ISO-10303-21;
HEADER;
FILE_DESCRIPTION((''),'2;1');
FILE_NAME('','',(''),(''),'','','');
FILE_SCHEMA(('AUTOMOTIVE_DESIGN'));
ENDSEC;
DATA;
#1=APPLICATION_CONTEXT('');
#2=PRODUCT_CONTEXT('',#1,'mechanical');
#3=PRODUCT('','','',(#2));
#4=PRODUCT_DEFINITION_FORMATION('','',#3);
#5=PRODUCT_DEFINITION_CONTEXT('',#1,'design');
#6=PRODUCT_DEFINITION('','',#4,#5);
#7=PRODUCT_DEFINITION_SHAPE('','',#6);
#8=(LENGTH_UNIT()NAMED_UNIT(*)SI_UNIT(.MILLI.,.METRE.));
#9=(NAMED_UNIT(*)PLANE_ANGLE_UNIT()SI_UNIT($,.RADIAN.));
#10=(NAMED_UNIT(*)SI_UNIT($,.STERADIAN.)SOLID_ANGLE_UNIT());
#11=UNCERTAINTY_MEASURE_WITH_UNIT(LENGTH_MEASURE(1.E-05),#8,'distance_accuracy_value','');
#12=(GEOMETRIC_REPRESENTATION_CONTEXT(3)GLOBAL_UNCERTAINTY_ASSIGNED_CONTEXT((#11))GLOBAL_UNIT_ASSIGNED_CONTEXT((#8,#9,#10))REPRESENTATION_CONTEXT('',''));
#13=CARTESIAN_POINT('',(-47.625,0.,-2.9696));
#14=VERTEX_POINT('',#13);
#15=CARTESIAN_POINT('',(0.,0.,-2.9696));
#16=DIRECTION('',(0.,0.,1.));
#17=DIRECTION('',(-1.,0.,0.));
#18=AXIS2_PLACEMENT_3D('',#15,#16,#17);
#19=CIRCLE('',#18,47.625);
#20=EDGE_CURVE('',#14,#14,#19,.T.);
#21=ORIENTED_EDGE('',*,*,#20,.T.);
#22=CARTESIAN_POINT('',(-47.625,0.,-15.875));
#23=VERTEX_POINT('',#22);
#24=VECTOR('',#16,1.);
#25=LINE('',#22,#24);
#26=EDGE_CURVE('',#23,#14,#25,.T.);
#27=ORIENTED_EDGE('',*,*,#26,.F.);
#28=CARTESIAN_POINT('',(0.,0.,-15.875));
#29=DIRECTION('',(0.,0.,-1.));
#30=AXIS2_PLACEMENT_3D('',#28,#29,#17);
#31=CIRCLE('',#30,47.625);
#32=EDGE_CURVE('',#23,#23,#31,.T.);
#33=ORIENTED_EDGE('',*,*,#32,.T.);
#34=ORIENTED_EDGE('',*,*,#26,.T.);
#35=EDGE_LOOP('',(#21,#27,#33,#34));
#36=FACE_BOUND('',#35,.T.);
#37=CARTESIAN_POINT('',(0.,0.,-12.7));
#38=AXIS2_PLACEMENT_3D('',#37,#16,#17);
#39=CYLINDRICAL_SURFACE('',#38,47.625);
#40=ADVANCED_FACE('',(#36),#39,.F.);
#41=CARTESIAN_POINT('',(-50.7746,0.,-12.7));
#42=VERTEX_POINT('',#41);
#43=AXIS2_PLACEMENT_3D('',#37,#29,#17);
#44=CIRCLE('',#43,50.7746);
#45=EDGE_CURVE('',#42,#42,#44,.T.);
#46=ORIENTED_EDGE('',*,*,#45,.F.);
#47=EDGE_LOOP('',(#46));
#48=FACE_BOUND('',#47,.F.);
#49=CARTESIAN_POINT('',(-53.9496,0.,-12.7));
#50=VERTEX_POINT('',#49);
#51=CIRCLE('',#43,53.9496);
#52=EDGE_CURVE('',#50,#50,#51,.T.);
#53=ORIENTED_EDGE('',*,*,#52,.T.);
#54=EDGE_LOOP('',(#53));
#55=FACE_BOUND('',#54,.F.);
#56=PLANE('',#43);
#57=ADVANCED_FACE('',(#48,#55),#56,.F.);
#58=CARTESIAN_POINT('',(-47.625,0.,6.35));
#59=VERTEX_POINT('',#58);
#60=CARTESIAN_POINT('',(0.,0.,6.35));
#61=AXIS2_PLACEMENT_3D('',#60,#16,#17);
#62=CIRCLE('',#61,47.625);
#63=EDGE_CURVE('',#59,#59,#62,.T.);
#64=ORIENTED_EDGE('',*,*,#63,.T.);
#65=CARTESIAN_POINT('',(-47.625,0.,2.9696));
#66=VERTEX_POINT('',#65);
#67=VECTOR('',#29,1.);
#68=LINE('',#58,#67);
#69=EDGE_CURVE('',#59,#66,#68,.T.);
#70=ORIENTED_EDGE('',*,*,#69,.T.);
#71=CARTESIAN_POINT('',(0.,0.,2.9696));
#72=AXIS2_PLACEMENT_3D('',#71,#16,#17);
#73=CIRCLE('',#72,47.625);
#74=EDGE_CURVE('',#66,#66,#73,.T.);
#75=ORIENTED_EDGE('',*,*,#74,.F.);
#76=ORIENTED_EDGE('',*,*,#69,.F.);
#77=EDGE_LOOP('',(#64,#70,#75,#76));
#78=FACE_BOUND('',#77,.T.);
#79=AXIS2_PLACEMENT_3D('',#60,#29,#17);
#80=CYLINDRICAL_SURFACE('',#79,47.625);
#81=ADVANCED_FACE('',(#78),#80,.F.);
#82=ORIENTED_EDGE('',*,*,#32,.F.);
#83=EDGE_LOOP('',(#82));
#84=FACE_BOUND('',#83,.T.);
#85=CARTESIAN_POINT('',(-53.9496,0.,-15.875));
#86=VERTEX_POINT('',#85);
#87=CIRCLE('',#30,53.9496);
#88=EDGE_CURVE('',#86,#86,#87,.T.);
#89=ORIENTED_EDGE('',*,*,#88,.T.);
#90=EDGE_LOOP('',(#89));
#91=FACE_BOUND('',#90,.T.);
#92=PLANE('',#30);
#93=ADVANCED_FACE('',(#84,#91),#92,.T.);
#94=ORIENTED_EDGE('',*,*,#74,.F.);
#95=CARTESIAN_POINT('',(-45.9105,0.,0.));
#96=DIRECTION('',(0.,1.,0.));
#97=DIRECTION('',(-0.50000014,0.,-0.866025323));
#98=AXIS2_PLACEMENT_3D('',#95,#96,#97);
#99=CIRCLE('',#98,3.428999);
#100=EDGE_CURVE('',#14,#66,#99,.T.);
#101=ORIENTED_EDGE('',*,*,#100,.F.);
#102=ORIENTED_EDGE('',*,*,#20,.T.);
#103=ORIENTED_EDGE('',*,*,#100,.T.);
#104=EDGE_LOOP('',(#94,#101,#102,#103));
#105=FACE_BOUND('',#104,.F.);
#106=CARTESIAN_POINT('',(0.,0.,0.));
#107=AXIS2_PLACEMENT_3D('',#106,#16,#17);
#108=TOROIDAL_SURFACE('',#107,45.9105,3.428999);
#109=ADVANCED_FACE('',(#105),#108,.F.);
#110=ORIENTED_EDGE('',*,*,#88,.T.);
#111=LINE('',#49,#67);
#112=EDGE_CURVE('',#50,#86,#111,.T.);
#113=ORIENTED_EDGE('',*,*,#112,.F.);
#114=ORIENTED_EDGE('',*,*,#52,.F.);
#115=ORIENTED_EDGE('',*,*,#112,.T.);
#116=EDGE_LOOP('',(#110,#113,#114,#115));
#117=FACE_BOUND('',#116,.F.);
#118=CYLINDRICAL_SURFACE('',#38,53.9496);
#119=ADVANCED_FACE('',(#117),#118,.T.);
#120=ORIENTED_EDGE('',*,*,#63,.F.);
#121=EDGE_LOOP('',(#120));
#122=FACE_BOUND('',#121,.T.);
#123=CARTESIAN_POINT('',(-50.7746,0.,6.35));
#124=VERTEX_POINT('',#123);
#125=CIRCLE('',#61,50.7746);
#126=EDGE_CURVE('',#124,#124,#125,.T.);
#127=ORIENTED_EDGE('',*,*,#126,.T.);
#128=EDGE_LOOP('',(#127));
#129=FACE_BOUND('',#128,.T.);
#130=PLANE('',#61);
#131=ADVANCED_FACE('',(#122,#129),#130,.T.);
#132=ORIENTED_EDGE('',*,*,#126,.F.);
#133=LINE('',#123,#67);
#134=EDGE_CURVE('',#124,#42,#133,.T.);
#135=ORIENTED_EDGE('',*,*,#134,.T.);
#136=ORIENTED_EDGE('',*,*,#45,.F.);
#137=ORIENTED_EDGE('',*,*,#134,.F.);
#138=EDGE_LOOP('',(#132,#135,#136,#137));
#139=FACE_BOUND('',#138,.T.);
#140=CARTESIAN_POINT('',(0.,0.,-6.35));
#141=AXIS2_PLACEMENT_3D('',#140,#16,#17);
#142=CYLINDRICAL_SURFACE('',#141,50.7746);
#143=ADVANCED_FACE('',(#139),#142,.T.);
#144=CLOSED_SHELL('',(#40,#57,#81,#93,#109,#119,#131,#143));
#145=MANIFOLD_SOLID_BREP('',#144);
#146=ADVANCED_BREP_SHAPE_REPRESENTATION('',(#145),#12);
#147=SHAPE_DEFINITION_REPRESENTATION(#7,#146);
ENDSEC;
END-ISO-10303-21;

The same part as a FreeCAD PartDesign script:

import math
import FreeCAD as App
import Part
import Sketcher

V = App.Vector
Q = App.Units.Quantity

doc = App.newDocument("Part")
body = doc.addObject("PartDesign::Body", "Body")

# Sketch on XZ plane
sketch1 = body.newObject("Sketcher::SketchObject", "Sketch")
sketch1.AttachmentSupport = (doc.getObject("XZ_Plane"), [""])
sketch1.MapMode = "FlatFace"
sketch1.addGeometry(Part.LineSegment(V(-50.8, -6.3, 0), V(-50.8, 6.3, 0)), False)
sketch1.addGeometry(Part.LineSegment(V(-50.8, 6.3, 0), V(-47.6, 6.3, 0)), False)
sketch1.addGeometry(Part.LineSegment(V(-47.6, 6.3, 0), V(-47.6, 3, 0)), False)
sketch1.addGeometry(Part.ArcOfCircle(Part.Circle(V(-45.9, 0, 0), V(0, 0, 1), 3.4), math.radians(120), math.radians(240)), False)
sketch1.addGeometry(Part.LineSegment(V(-47.6, -3, 0), V(-47.6, -6.3, 0)), False)
sketch1.addGeometry(Part.LineSegment(V(-47.6, -6.3, 0), V(-50.8, -6.3, 0)), False)
sketch1.addConstraint(Sketcher.Constraint("Coincident", 0, 2, 1, 1))
sketch1.addConstraint(Sketcher.Constraint("Coincident", 1, 2, 2, 1))
sketch1.addConstraint(Sketcher.Constraint("Coincident", 2, 2, 3, 1))
sketch1.addConstraint(Sketcher.Constraint("Coincident", 3, 2, 4, 1))
sketch1.addConstraint(Sketcher.Constraint("Coincident", 4, 2, 5, 1))
sketch1.addConstraint(Sketcher.Constraint("Coincident", 5, 2, 0, 1))
sketch1.addConstraint(Sketcher.Constraint("Vertical", 0))
sketch1.addConstraint(Sketcher.Constraint("Horizontal", 1))
sketch1.addConstraint(Sketcher.Constraint("Vertical", 2))
sketch1.addConstraint(Sketcher.Constraint("Vertical", 4))
sketch1.addConstraint(Sketcher.Constraint("Horizontal", 5))
sketch1.addConstraint(Sketcher.Constraint("Symmetric", 2, 2, 3, 2, -1))
sketch1.addConstraint(Sketcher.Constraint("Equal", 2, 4))
sketch1.addConstraint(Sketcher.Constraint("Radius", 3, Q("0.135 in")))
sketch1.addConstraint(Sketcher.Constraint("DistanceX", 1, 1, 1, 2, Q("0.124 in")))
sketch1.addConstraint(Sketcher.Constraint("DistanceY", -1, 1, 0, 2, Q("0.25 in")))
sketch1.addConstraint(Sketcher.Constraint("DistanceX", 1, 2, -1, 1, Q("1.875 in")))
sketch1.addConstraint(Sketcher.Constraint("DistanceX", 1, 2, 3, 3, Q("0.0675 in")))
revolution = body.newObject("PartDesign::Revolution", "Revolution")
revolution.Profile = sketch1
revolution.ReferenceAxis = (sketch1, ["V_Axis"])
revolution.Angle = 360

# Sketch on XY plane
sketch2 = body.newObject("Sketcher::SketchObject", "Sketch001")
sketch2.AttachmentSupport = (doc.getObject("XY_Plane"), [""])
sketch2.MapMode = "FlatFace"
sketch2.AttachmentOffset = App.Placement(V(0, 0, -0.25 * 25.4), App.Rotation())
sketch2.addGeometry(Part.Circle(V(0, 0, 0), V(0, 0, 1), 51), False)
sketch2.addGeometry(Part.Circle(V(0, 0, 0), V(0, 0, 1), 48), False)
sketch2.addConstraint(Sketcher.Constraint("Coincident", 0, 3, -1, 1))
sketch2.addConstraint(Sketcher.Constraint("Coincident", 1, 3, -1, 1))
sketch2.addConstraint(Sketcher.Constraint("Diameter", 1, Q("3.75 in")))
sketch2.addConstraint(Sketcher.Constraint("Diameter", 0, Q("3.998 in")))
pad1 = body.newObject("PartDesign::Pad", "Pad")
pad1.Profile = sketch2
pad1.Length = Q("0.25 in")
pad1.Reversed = True

# Sketch on XY plane
sketch3 = body.newObject("Sketcher::SketchObject", "Sketch002")
sketch3.AttachmentSupport = (doc.getObject("XY_Plane"), [""])
sketch3.MapMode = "FlatFace"
sketch3.AttachmentOffset = App.Placement(V(0, 0, -0.5 * 25.4), App.Rotation())
sketch3.addGeometry(Part.Circle(V(0, 0, 0), V(0, 0, 1), 54), False)
sketch3.addGeometry(Part.Circle(V(0, 0, 0), V(0, 0, 1), 48), False)
sketch3.addConstraint(Sketcher.Constraint("Coincident", 0, 3, -1, 1))
sketch3.addConstraint(Sketcher.Constraint("Coincident", 1, 3, -1, 1))
sketch3.addConstraint(Sketcher.Constraint("Diameter", 1, Q("3.75 in")))
sketch3.addConstraint(Sketcher.Constraint("Diameter", 0, Q("4.248 in")))
pad2 = body.newObject("PartDesign::Pad", "Pad001")
pad2.Profile = sketch3
pad2.Length = Q("0.125 in")
pad2.Reversed = True

doc.recompute()
